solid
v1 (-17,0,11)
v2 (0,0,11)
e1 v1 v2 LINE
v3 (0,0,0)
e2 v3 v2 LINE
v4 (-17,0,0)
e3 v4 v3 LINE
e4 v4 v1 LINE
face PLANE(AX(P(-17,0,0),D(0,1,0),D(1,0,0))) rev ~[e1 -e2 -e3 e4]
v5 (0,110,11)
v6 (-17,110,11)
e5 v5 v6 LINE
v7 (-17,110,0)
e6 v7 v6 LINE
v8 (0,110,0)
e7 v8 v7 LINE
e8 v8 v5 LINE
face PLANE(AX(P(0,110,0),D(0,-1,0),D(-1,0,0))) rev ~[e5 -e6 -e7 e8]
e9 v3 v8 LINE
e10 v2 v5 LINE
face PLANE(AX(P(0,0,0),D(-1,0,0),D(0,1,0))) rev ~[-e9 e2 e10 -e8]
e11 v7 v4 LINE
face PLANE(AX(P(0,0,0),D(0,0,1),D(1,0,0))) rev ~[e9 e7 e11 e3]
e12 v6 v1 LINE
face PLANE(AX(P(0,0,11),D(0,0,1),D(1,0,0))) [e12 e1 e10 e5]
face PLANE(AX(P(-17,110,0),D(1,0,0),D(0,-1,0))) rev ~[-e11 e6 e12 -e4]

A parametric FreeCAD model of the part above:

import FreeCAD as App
import Part
import Sketcher
from FreeCAD import Vector


def add_polygon(sketch, points):
    """Adds a closed chain of lines whose ends are joined by coincident constraints."""
    first, n = sketch.GeometryCount, len(points)
    for a, b in zip(points, points[1:] + points[:1]):
        sketch.addGeometry(Part.LineSegment(App.Vector(*a, 0), App.Vector(*b, 0)), False)
    for i in range(n):
        sketch.addConstraint(Sketcher.Constraint("Coincident", first + i, 2, first + (i + 1) % n, 1))

doc = App.newDocument("Part")
params = doc.addObject("Spreadsheet::Sheet", "Params")
for row, (alias, value) in enumerate([
    ("sketch1_width", "17 mm"),
    ("sketch1_height", "110 mm"),
    ("pad1_length", "11 mm"),
], start=1):
    params.set(f"A{row}", alias)
    params.set(f"B{row}", "=" + value)
    params.setAlias(f"B{row}", alias)

body = doc.addObject("PartDesign::Body", "Body")

# Sketch on XY plane
sketch1 = body.newObject("Sketcher::SketchObject", "Sketch")
sketch1.AttachmentSupport = (doc.getObject("XY_Plane"), [""])
sketch1.MapMode = "FlatFace"
add_polygon(sketch1, [(-17, 0), (0, 0), (0, 110), (-17, 110)])  # lines 0-3
sketch1.addConstraint([
    Sketcher.Constraint("Horizontal", 0),
    Sketcher.Constraint("Vertical", 1),
    Sketcher.Constraint("Horizontal", 2),
    Sketcher.Constraint("Vertical", 3),
    Sketcher.Constraint("Coincident", 0, 2, -1, 1),
    Sketcher.Constraint("DistanceX", 0, 1, 0, 2, 17.0),
    Sketcher.Constraint("DistanceY", 1, 1, 1, 2, 110.0),
])
sketch1.setExpression("Constraints[9]", "Params.sketch1_width")
sketch1.setExpression("Constraints[10]", "Params.sketch1_height")
pad1 = body.newObject("PartDesign::Pad", "Pad")
pad1.Profile = sketch1
pad1.setExpression("Length", "Params.pad1_length")

doc.recompute()
